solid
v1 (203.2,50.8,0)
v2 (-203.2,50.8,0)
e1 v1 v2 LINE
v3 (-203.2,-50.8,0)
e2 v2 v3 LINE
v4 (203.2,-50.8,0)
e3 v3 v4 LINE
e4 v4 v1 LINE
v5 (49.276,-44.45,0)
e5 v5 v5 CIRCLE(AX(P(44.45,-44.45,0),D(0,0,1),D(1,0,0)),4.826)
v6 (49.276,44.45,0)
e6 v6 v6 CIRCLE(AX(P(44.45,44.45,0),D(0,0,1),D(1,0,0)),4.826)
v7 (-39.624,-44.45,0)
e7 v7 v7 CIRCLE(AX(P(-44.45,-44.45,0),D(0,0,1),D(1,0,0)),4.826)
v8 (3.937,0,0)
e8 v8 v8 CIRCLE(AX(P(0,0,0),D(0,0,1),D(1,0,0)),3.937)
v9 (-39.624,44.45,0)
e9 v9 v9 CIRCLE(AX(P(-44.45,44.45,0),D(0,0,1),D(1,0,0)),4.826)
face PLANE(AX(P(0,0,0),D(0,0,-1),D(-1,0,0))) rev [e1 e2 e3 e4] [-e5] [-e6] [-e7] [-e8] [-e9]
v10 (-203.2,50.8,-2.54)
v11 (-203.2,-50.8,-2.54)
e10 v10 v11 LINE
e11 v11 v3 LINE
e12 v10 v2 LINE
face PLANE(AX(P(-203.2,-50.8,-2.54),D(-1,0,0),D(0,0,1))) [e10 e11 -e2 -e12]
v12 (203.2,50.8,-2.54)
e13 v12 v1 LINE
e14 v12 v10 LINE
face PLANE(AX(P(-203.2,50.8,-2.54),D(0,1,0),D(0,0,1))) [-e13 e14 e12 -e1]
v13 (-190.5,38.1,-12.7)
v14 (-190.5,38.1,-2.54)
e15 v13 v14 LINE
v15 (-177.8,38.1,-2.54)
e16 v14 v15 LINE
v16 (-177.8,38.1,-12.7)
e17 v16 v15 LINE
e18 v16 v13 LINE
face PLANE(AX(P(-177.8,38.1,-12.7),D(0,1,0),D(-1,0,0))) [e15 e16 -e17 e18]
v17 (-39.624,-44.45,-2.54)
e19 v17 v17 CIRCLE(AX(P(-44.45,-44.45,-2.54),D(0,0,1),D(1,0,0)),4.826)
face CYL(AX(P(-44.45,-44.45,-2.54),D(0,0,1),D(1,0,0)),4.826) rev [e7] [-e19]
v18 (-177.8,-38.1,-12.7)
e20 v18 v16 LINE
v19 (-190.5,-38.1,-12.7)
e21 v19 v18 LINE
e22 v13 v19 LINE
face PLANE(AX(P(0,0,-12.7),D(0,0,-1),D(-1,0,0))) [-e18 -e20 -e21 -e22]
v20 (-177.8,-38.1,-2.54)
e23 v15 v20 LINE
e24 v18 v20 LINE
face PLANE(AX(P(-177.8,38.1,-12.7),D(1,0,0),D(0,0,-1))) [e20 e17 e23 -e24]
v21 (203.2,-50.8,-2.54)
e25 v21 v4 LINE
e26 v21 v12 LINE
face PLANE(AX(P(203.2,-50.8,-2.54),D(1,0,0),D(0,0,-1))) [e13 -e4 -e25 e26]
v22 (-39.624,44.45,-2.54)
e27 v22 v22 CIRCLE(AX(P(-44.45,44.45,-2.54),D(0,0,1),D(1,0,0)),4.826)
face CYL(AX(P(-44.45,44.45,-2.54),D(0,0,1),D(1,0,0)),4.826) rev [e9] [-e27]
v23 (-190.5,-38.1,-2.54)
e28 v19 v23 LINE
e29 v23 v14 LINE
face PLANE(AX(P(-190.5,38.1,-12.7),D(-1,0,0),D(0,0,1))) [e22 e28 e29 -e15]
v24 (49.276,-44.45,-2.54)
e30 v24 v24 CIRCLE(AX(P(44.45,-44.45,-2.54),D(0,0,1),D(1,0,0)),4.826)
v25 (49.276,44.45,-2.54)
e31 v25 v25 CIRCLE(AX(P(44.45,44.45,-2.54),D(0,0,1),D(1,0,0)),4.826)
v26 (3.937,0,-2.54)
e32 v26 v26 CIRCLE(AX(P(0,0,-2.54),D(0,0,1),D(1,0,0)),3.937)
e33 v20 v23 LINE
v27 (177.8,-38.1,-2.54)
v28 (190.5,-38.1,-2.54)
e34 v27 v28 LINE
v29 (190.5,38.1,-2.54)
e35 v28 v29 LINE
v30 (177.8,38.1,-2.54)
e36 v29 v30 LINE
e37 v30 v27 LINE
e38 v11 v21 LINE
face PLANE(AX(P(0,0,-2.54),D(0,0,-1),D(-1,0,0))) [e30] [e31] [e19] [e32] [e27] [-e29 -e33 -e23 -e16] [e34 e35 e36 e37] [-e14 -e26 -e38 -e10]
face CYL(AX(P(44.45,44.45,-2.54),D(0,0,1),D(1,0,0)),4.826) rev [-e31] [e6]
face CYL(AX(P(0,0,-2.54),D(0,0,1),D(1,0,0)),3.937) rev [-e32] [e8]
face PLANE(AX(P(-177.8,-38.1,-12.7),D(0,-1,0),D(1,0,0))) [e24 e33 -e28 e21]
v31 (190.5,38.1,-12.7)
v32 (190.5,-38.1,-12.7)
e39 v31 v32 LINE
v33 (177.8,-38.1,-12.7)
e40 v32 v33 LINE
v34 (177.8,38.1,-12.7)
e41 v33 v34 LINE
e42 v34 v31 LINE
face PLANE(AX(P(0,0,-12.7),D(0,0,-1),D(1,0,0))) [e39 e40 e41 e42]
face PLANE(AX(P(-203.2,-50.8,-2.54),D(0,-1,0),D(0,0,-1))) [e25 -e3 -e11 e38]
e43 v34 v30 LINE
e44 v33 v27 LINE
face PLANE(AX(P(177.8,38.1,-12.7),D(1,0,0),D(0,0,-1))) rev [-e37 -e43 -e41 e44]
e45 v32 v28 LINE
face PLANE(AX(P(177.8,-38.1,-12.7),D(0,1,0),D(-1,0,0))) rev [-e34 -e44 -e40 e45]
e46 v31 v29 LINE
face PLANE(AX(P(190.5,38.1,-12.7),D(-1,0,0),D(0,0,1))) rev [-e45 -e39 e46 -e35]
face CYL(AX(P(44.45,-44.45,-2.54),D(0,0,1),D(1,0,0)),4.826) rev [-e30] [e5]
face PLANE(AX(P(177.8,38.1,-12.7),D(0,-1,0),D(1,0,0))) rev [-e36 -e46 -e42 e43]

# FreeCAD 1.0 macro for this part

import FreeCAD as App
import Part
import Sketcher

V = App.Vector
Q = App.Units.Quantity


def add_polygon(sketch, points):
    """Adds a closed chain of lines whose ends are joined by coincident constraints."""
    first, n = sketch.GeometryCount, len(points)
    for a, b in zip(points, points[1:] + points[:1]):
        sketch.addGeometry(Part.LineSegment(App.Vector(*a, 0), App.Vector(*b, 0)), False)
    for i in range(n):
        sketch.addConstraint(Sketcher.Constraint("Coincident", first + i, 2, first + (i + 1) % n, 1))

doc = App.newDocument("Part")
body = doc.addObject("PartDesign::Body", "Body")

sketch1 = body.newObject("Sketcher::SketchObject", "Sketch")
sketch1.AttachmentSupport = (doc.getObject("XY_Plane"), [""])
sketch1.MapMode = "FlatFace"
add_polygon(sketch1, [(-203.2, 50.8), (-203.2, -50.8), (203.2, -50.8), (203.2, 50.8)])
sketch1.addConstraint(Sketcher.Constraint("Vertical", 0))
sketch1.addConstraint(Sketcher.Constraint("Horizontal", 1))
sketch1.addConstraint(Sketcher.Constraint("Vertical", 2))
sketch1.addConstraint(Sketcher.Constraint("Horizontal", 3))
sketch1.addConstraint(Sketcher.Constraint("Symmetric", 0, 2, 2, 2, -1, 1))
sketch1.addConstraint(Sketcher.Constraint("DistanceX", 1, 1, 1, 2, Q("16 in")))
sketch1.addConstraint(Sketcher.Constraint("DistanceY", 0, 2, 0, 1, Q("4 in")))
pad1 = body.newObject("PartDesign::Pad", "Pad")
pad1.Profile = sketch1
pad1.Length = Q("0.1 in")
pad1.Reversed = True

sketch2 = body.newObject("Sketcher::SketchObject", "Sketch001")
sketch2.AttachmentSupport = (doc.getObject("XY_Plane"), [""])
sketch2.MapMode = "FlatFace"
sketch2.addGeometry(Part.Circle(V(-44.45, 44.45, 0), V(0, 0, 1), 4.826), False)
sketch2.addGeometry(Part.Circle(V(44.45, 44.45, 0), V(0, 0, 1), 4.826), False)
sketch2.addGeometry(Part.Circle(V(44.45, -44.45, 0), V(0, 0, 1), 4.826), False)
sketch2.addGeometry(Part.Circle(V(-44.45, -44.45, 0), V(0, 0, 1), 4.826), False)
sketch2.addConstraint(Sketcher.Constraint("Equal", 0, 1))
sketch2.addConstraint(Sketcher.Constraint("Equal", 1, 2))
sketch2.addConstraint(Sketcher.Constraint("Equal", 2, 3))
sketch2.addConstraint(Sketcher.Constraint("Symmetric", 0, 3, 2, 3, -1, 1))
sketch2.addConstraint(Sketcher.Constraint("Symmetric", 1, 3, 3, 3, -1, 1))
sketch2.addConstraint(Sketcher.Constraint("Symmetric", 0, 3, 1, 3, -2))
sketch2.addConstraint(Sketcher.Constraint("Diameter", 0, Q("0.38 in")))
sketch2.addConstraint(Sketcher.Constraint("DistanceX", 0, 3, 1, 3, Q("3.5 in")))
sketch2.addConstraint(Sketcher.Constraint("DistanceY", 2, 3, 1, 3, Q("3.5 in")))
pocket1 = body.newObject("PartDesign::Pocket", "Pocket")
pocket1.Profile = sketch2
pocket1.Length = Q("0.1 in")

sketch3 = body.newObject("Sketcher::SketchObject", "Sketch002")
sketch3.AttachmentSupport = (doc.getObject("XY_Plane"), [""])
sketch3.MapMode = "FlatFace"
sketch3.addGeometry(Part.Circle(V(0, 0, 0), V(0, 0, 1), 3.937), False)
sketch3.addConstraint(Sketcher.Constraint("Coincident", 0, 3, -1, 1))
sketch3.addConstraint(Sketcher.Constraint("Diameter", 0, Q("0.31 in")))
pocket2 = body.newObject("PartDesign::Pocket", "Pocket001")
pocket2.Profile = sketch3
pocket2.Length = Q("0.1 in")

sketch4 = body.newObject("Sketcher::SketchObject", "Sketch003")
sketch4.AttachmentSupport = (doc.getObject("XY_Plane"), [""])
sketch4.MapMode = "FlatFace"
add_polygon(sketch4, [(-190.5, 38.1), (-190.5, -38.1), (-177.8, -38.1), (-177.8, 38.1)])
sketch4.addConstraint(Sketcher.Constraint("Vertical", 0))
sketch4.addConstraint(Sketcher.Constraint("Horizontal", 1))
sketch4.addConstraint(Sketcher.Constraint("Vertical", 2))
sketch4.addConstraint(Sketcher.Constraint("Horizontal", 3))
sketch4.addConstraint(Sketcher.Constraint("DistanceY", 0, 2, 0, 1, Q("3 in")))
sketch4.addConstraint(Sketcher.Constraint("DistanceX", 1, 1, 1, 2, Q("0.5 in")))
sketch4.addConstraint(Sketcher.Constraint("DistanceX", 1, 2, -1, 1, Q("7 in")))
sketch4.addConstraint(Sketcher.Constraint("DistanceY", 0, 2, -1, 1, Q("1.5 in")))
pad2 = body.newObject("PartDesign::Pad", "Pad001")
pad2.Profile = sketch4
pad2.Length = Q("0.5 in")
pad2.Reversed = True
doc.recompute()

mirrored = body.newObject("PartDesign::Mirrored", "Mirrored")
mirrored.Originals = [pad2]
mirrored.MirrorPlane = (doc.getObject("YZ_Plane"), [""])
body.Tip = mirrored

doc.recompute()
